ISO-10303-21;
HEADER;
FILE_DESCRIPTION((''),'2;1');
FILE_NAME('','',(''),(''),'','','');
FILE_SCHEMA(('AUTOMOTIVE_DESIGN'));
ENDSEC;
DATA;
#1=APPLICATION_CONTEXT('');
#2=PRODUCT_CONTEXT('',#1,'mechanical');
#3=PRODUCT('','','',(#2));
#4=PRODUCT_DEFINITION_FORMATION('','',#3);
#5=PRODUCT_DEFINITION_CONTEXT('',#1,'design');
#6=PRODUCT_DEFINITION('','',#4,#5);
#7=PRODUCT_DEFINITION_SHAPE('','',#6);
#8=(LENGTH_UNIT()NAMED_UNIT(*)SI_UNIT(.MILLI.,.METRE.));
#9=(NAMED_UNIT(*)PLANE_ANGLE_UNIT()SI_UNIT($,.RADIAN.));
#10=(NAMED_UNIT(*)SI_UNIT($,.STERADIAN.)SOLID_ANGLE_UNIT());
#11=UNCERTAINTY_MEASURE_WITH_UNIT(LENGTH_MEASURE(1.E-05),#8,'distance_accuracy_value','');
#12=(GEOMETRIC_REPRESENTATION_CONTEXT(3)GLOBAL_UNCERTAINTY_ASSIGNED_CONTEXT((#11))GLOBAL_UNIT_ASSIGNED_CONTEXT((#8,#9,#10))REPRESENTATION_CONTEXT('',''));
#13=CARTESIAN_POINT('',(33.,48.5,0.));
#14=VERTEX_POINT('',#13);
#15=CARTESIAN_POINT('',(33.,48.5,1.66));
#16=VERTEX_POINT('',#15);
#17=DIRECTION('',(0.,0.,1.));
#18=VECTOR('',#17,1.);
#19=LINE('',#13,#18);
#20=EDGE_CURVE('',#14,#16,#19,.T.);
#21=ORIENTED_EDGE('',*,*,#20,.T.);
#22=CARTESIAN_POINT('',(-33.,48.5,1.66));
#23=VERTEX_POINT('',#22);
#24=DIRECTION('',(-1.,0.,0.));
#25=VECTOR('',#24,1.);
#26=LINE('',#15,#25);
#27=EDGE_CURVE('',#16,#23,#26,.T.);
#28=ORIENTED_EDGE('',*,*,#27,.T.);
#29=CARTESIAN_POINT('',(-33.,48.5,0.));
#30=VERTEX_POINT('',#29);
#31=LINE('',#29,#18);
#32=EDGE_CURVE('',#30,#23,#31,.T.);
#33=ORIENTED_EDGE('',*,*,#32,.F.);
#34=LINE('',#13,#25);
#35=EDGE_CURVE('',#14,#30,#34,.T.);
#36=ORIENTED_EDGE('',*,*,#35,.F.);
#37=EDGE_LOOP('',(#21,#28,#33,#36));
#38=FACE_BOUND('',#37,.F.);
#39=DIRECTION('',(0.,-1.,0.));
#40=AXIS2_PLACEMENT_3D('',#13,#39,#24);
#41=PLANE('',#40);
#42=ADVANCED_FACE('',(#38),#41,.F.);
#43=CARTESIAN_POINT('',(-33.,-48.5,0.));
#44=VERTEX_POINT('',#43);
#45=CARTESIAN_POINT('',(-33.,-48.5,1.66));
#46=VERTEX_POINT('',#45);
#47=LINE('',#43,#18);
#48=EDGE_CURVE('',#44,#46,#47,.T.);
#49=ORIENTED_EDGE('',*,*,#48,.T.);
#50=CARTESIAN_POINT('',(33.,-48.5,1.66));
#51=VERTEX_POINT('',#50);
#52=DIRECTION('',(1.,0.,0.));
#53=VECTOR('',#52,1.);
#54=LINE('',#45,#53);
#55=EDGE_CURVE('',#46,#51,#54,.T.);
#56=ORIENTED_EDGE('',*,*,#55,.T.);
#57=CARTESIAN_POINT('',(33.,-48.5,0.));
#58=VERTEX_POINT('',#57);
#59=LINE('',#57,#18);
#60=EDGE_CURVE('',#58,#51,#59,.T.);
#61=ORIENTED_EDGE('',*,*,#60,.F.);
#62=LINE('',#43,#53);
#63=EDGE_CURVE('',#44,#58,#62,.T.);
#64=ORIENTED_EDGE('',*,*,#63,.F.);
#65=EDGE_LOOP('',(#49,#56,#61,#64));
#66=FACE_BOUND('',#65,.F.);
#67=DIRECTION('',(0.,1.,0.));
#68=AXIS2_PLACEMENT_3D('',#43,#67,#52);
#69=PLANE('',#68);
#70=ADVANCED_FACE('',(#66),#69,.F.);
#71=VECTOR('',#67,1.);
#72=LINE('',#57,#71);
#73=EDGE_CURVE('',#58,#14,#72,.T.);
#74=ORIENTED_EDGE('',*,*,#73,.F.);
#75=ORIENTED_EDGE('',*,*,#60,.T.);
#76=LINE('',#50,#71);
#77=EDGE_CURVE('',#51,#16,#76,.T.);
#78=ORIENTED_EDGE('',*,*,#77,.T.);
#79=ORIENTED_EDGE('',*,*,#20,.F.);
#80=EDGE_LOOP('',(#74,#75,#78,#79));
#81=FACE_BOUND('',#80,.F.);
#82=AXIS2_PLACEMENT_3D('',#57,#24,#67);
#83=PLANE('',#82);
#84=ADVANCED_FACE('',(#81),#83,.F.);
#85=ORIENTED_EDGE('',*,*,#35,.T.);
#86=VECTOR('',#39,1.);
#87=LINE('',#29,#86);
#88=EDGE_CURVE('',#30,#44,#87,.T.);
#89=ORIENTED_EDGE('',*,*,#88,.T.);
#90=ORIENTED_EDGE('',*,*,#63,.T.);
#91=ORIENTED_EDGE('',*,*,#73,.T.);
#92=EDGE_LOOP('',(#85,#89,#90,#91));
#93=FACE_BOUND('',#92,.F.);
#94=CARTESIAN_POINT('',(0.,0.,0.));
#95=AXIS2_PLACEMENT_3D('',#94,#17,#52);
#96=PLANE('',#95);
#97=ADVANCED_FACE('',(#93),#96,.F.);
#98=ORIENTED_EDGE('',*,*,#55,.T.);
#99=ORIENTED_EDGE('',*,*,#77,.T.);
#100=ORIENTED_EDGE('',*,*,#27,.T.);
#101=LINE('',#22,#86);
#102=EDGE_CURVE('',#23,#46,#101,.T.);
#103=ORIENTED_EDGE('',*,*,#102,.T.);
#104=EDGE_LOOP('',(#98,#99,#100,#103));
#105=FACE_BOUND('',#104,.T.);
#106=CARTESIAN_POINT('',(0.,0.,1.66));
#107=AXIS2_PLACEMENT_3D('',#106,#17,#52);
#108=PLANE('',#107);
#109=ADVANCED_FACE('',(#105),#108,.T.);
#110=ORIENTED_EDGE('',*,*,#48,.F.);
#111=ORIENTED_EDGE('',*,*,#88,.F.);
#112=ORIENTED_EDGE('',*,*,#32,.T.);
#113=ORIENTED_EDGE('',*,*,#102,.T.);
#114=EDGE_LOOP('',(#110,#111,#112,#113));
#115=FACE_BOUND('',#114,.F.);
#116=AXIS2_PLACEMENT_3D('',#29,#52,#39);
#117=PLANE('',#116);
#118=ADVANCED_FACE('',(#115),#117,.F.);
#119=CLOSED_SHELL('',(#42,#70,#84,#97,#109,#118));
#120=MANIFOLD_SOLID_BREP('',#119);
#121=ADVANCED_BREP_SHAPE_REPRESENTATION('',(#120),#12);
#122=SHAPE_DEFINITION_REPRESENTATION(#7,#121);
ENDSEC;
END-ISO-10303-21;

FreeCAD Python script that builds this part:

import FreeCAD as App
import Part
import Sketcher
from FreeCAD import Vector
Q = App.Units.Quantity

doc = App.newDocument("Part")
params = doc.addObject("Spreadsheet::Sheet", "Params")
for row, (alias, value) in enumerate([
    ("sketch1_width", "66 mm"),
    ("sketch1_height", "97 mm"),
    ("pad1_length", "1.66 mm"),
], start=1):
    params.set(f"A{row}", alias)
    params.set(f"B{row}", "=" + value)
    params.setAlias(f"B{row}", alias)

body = doc.addObject("PartDesign::Body", "Body")

sketch1 = body.newObject("Sketcher::SketchObject", "Sketch")
sketch1.AttachmentSupport = (doc.getObject("XY_Plane"), [""])
sketch1.MapMode = "FlatFace"
sketch1.addGeometry(Part.LineSegment(Vector(-33, 48, 0), Vector(-33, -48, 0)), False)
sketch1.addGeometry(Part.LineSegment(Vector(-33, -48, 0), Vector(33, -48, 0)), False)
sketch1.addGeometry(Part.LineSegment(Vector(33, -48, 0), Vector(33, 48, 0)), False)
sketch1.addGeometry(Part.LineSegment(Vector(33, 48, 0), Vector(-33, 48, 0)), False)
sketch1.addConstraint(Sketcher.Constraint("Coincident", 0, 2, 1, 1))
sketch1.addConstraint(Sketcher.Constraint("Coincident", 1, 2, 2, 1))
sketch1.addConstraint(Sketcher.Constraint("Coincident", 2, 2, 3, 1))
sketch1.addConstraint(Sketcher.Constraint("Coincident", 3, 2, 0, 1))
sketch1.addConstraint(Sketcher.Constraint("Vertical", 0))
sketch1.addConstraint(Sketcher.Constraint("Horizontal", 1))
sketch1.addConstraint(Sketcher.Constraint("Vertical", 2))
sketch1.addConstraint(Sketcher.Constraint("Horizontal", 3))
sketch1.addConstraint(Sketcher.Constraint("Symmetric", 0, 2, 2, 2, -1, 1))
sketch1.addConstraint(Sketcher.Constraint("DistanceX", 1, 1, 1, 2, Q("66 mm")))
sketch1.addConstraint(Sketcher.Constraint("DistanceY", 0, 2, 0, 1, Q("97 mm")))
sketch1.setExpression("Constraints[9]", "Params.sketch1_width")
sketch1.setExpression("Constraints[10]", "Params.sketch1_height")
pad1 = body.newObject("PartDesign::Pad", "Pad")
pad1.Profile = sketch1
pad1.setExpression("Length", "Params.pad1_length")

doc.recompute()
